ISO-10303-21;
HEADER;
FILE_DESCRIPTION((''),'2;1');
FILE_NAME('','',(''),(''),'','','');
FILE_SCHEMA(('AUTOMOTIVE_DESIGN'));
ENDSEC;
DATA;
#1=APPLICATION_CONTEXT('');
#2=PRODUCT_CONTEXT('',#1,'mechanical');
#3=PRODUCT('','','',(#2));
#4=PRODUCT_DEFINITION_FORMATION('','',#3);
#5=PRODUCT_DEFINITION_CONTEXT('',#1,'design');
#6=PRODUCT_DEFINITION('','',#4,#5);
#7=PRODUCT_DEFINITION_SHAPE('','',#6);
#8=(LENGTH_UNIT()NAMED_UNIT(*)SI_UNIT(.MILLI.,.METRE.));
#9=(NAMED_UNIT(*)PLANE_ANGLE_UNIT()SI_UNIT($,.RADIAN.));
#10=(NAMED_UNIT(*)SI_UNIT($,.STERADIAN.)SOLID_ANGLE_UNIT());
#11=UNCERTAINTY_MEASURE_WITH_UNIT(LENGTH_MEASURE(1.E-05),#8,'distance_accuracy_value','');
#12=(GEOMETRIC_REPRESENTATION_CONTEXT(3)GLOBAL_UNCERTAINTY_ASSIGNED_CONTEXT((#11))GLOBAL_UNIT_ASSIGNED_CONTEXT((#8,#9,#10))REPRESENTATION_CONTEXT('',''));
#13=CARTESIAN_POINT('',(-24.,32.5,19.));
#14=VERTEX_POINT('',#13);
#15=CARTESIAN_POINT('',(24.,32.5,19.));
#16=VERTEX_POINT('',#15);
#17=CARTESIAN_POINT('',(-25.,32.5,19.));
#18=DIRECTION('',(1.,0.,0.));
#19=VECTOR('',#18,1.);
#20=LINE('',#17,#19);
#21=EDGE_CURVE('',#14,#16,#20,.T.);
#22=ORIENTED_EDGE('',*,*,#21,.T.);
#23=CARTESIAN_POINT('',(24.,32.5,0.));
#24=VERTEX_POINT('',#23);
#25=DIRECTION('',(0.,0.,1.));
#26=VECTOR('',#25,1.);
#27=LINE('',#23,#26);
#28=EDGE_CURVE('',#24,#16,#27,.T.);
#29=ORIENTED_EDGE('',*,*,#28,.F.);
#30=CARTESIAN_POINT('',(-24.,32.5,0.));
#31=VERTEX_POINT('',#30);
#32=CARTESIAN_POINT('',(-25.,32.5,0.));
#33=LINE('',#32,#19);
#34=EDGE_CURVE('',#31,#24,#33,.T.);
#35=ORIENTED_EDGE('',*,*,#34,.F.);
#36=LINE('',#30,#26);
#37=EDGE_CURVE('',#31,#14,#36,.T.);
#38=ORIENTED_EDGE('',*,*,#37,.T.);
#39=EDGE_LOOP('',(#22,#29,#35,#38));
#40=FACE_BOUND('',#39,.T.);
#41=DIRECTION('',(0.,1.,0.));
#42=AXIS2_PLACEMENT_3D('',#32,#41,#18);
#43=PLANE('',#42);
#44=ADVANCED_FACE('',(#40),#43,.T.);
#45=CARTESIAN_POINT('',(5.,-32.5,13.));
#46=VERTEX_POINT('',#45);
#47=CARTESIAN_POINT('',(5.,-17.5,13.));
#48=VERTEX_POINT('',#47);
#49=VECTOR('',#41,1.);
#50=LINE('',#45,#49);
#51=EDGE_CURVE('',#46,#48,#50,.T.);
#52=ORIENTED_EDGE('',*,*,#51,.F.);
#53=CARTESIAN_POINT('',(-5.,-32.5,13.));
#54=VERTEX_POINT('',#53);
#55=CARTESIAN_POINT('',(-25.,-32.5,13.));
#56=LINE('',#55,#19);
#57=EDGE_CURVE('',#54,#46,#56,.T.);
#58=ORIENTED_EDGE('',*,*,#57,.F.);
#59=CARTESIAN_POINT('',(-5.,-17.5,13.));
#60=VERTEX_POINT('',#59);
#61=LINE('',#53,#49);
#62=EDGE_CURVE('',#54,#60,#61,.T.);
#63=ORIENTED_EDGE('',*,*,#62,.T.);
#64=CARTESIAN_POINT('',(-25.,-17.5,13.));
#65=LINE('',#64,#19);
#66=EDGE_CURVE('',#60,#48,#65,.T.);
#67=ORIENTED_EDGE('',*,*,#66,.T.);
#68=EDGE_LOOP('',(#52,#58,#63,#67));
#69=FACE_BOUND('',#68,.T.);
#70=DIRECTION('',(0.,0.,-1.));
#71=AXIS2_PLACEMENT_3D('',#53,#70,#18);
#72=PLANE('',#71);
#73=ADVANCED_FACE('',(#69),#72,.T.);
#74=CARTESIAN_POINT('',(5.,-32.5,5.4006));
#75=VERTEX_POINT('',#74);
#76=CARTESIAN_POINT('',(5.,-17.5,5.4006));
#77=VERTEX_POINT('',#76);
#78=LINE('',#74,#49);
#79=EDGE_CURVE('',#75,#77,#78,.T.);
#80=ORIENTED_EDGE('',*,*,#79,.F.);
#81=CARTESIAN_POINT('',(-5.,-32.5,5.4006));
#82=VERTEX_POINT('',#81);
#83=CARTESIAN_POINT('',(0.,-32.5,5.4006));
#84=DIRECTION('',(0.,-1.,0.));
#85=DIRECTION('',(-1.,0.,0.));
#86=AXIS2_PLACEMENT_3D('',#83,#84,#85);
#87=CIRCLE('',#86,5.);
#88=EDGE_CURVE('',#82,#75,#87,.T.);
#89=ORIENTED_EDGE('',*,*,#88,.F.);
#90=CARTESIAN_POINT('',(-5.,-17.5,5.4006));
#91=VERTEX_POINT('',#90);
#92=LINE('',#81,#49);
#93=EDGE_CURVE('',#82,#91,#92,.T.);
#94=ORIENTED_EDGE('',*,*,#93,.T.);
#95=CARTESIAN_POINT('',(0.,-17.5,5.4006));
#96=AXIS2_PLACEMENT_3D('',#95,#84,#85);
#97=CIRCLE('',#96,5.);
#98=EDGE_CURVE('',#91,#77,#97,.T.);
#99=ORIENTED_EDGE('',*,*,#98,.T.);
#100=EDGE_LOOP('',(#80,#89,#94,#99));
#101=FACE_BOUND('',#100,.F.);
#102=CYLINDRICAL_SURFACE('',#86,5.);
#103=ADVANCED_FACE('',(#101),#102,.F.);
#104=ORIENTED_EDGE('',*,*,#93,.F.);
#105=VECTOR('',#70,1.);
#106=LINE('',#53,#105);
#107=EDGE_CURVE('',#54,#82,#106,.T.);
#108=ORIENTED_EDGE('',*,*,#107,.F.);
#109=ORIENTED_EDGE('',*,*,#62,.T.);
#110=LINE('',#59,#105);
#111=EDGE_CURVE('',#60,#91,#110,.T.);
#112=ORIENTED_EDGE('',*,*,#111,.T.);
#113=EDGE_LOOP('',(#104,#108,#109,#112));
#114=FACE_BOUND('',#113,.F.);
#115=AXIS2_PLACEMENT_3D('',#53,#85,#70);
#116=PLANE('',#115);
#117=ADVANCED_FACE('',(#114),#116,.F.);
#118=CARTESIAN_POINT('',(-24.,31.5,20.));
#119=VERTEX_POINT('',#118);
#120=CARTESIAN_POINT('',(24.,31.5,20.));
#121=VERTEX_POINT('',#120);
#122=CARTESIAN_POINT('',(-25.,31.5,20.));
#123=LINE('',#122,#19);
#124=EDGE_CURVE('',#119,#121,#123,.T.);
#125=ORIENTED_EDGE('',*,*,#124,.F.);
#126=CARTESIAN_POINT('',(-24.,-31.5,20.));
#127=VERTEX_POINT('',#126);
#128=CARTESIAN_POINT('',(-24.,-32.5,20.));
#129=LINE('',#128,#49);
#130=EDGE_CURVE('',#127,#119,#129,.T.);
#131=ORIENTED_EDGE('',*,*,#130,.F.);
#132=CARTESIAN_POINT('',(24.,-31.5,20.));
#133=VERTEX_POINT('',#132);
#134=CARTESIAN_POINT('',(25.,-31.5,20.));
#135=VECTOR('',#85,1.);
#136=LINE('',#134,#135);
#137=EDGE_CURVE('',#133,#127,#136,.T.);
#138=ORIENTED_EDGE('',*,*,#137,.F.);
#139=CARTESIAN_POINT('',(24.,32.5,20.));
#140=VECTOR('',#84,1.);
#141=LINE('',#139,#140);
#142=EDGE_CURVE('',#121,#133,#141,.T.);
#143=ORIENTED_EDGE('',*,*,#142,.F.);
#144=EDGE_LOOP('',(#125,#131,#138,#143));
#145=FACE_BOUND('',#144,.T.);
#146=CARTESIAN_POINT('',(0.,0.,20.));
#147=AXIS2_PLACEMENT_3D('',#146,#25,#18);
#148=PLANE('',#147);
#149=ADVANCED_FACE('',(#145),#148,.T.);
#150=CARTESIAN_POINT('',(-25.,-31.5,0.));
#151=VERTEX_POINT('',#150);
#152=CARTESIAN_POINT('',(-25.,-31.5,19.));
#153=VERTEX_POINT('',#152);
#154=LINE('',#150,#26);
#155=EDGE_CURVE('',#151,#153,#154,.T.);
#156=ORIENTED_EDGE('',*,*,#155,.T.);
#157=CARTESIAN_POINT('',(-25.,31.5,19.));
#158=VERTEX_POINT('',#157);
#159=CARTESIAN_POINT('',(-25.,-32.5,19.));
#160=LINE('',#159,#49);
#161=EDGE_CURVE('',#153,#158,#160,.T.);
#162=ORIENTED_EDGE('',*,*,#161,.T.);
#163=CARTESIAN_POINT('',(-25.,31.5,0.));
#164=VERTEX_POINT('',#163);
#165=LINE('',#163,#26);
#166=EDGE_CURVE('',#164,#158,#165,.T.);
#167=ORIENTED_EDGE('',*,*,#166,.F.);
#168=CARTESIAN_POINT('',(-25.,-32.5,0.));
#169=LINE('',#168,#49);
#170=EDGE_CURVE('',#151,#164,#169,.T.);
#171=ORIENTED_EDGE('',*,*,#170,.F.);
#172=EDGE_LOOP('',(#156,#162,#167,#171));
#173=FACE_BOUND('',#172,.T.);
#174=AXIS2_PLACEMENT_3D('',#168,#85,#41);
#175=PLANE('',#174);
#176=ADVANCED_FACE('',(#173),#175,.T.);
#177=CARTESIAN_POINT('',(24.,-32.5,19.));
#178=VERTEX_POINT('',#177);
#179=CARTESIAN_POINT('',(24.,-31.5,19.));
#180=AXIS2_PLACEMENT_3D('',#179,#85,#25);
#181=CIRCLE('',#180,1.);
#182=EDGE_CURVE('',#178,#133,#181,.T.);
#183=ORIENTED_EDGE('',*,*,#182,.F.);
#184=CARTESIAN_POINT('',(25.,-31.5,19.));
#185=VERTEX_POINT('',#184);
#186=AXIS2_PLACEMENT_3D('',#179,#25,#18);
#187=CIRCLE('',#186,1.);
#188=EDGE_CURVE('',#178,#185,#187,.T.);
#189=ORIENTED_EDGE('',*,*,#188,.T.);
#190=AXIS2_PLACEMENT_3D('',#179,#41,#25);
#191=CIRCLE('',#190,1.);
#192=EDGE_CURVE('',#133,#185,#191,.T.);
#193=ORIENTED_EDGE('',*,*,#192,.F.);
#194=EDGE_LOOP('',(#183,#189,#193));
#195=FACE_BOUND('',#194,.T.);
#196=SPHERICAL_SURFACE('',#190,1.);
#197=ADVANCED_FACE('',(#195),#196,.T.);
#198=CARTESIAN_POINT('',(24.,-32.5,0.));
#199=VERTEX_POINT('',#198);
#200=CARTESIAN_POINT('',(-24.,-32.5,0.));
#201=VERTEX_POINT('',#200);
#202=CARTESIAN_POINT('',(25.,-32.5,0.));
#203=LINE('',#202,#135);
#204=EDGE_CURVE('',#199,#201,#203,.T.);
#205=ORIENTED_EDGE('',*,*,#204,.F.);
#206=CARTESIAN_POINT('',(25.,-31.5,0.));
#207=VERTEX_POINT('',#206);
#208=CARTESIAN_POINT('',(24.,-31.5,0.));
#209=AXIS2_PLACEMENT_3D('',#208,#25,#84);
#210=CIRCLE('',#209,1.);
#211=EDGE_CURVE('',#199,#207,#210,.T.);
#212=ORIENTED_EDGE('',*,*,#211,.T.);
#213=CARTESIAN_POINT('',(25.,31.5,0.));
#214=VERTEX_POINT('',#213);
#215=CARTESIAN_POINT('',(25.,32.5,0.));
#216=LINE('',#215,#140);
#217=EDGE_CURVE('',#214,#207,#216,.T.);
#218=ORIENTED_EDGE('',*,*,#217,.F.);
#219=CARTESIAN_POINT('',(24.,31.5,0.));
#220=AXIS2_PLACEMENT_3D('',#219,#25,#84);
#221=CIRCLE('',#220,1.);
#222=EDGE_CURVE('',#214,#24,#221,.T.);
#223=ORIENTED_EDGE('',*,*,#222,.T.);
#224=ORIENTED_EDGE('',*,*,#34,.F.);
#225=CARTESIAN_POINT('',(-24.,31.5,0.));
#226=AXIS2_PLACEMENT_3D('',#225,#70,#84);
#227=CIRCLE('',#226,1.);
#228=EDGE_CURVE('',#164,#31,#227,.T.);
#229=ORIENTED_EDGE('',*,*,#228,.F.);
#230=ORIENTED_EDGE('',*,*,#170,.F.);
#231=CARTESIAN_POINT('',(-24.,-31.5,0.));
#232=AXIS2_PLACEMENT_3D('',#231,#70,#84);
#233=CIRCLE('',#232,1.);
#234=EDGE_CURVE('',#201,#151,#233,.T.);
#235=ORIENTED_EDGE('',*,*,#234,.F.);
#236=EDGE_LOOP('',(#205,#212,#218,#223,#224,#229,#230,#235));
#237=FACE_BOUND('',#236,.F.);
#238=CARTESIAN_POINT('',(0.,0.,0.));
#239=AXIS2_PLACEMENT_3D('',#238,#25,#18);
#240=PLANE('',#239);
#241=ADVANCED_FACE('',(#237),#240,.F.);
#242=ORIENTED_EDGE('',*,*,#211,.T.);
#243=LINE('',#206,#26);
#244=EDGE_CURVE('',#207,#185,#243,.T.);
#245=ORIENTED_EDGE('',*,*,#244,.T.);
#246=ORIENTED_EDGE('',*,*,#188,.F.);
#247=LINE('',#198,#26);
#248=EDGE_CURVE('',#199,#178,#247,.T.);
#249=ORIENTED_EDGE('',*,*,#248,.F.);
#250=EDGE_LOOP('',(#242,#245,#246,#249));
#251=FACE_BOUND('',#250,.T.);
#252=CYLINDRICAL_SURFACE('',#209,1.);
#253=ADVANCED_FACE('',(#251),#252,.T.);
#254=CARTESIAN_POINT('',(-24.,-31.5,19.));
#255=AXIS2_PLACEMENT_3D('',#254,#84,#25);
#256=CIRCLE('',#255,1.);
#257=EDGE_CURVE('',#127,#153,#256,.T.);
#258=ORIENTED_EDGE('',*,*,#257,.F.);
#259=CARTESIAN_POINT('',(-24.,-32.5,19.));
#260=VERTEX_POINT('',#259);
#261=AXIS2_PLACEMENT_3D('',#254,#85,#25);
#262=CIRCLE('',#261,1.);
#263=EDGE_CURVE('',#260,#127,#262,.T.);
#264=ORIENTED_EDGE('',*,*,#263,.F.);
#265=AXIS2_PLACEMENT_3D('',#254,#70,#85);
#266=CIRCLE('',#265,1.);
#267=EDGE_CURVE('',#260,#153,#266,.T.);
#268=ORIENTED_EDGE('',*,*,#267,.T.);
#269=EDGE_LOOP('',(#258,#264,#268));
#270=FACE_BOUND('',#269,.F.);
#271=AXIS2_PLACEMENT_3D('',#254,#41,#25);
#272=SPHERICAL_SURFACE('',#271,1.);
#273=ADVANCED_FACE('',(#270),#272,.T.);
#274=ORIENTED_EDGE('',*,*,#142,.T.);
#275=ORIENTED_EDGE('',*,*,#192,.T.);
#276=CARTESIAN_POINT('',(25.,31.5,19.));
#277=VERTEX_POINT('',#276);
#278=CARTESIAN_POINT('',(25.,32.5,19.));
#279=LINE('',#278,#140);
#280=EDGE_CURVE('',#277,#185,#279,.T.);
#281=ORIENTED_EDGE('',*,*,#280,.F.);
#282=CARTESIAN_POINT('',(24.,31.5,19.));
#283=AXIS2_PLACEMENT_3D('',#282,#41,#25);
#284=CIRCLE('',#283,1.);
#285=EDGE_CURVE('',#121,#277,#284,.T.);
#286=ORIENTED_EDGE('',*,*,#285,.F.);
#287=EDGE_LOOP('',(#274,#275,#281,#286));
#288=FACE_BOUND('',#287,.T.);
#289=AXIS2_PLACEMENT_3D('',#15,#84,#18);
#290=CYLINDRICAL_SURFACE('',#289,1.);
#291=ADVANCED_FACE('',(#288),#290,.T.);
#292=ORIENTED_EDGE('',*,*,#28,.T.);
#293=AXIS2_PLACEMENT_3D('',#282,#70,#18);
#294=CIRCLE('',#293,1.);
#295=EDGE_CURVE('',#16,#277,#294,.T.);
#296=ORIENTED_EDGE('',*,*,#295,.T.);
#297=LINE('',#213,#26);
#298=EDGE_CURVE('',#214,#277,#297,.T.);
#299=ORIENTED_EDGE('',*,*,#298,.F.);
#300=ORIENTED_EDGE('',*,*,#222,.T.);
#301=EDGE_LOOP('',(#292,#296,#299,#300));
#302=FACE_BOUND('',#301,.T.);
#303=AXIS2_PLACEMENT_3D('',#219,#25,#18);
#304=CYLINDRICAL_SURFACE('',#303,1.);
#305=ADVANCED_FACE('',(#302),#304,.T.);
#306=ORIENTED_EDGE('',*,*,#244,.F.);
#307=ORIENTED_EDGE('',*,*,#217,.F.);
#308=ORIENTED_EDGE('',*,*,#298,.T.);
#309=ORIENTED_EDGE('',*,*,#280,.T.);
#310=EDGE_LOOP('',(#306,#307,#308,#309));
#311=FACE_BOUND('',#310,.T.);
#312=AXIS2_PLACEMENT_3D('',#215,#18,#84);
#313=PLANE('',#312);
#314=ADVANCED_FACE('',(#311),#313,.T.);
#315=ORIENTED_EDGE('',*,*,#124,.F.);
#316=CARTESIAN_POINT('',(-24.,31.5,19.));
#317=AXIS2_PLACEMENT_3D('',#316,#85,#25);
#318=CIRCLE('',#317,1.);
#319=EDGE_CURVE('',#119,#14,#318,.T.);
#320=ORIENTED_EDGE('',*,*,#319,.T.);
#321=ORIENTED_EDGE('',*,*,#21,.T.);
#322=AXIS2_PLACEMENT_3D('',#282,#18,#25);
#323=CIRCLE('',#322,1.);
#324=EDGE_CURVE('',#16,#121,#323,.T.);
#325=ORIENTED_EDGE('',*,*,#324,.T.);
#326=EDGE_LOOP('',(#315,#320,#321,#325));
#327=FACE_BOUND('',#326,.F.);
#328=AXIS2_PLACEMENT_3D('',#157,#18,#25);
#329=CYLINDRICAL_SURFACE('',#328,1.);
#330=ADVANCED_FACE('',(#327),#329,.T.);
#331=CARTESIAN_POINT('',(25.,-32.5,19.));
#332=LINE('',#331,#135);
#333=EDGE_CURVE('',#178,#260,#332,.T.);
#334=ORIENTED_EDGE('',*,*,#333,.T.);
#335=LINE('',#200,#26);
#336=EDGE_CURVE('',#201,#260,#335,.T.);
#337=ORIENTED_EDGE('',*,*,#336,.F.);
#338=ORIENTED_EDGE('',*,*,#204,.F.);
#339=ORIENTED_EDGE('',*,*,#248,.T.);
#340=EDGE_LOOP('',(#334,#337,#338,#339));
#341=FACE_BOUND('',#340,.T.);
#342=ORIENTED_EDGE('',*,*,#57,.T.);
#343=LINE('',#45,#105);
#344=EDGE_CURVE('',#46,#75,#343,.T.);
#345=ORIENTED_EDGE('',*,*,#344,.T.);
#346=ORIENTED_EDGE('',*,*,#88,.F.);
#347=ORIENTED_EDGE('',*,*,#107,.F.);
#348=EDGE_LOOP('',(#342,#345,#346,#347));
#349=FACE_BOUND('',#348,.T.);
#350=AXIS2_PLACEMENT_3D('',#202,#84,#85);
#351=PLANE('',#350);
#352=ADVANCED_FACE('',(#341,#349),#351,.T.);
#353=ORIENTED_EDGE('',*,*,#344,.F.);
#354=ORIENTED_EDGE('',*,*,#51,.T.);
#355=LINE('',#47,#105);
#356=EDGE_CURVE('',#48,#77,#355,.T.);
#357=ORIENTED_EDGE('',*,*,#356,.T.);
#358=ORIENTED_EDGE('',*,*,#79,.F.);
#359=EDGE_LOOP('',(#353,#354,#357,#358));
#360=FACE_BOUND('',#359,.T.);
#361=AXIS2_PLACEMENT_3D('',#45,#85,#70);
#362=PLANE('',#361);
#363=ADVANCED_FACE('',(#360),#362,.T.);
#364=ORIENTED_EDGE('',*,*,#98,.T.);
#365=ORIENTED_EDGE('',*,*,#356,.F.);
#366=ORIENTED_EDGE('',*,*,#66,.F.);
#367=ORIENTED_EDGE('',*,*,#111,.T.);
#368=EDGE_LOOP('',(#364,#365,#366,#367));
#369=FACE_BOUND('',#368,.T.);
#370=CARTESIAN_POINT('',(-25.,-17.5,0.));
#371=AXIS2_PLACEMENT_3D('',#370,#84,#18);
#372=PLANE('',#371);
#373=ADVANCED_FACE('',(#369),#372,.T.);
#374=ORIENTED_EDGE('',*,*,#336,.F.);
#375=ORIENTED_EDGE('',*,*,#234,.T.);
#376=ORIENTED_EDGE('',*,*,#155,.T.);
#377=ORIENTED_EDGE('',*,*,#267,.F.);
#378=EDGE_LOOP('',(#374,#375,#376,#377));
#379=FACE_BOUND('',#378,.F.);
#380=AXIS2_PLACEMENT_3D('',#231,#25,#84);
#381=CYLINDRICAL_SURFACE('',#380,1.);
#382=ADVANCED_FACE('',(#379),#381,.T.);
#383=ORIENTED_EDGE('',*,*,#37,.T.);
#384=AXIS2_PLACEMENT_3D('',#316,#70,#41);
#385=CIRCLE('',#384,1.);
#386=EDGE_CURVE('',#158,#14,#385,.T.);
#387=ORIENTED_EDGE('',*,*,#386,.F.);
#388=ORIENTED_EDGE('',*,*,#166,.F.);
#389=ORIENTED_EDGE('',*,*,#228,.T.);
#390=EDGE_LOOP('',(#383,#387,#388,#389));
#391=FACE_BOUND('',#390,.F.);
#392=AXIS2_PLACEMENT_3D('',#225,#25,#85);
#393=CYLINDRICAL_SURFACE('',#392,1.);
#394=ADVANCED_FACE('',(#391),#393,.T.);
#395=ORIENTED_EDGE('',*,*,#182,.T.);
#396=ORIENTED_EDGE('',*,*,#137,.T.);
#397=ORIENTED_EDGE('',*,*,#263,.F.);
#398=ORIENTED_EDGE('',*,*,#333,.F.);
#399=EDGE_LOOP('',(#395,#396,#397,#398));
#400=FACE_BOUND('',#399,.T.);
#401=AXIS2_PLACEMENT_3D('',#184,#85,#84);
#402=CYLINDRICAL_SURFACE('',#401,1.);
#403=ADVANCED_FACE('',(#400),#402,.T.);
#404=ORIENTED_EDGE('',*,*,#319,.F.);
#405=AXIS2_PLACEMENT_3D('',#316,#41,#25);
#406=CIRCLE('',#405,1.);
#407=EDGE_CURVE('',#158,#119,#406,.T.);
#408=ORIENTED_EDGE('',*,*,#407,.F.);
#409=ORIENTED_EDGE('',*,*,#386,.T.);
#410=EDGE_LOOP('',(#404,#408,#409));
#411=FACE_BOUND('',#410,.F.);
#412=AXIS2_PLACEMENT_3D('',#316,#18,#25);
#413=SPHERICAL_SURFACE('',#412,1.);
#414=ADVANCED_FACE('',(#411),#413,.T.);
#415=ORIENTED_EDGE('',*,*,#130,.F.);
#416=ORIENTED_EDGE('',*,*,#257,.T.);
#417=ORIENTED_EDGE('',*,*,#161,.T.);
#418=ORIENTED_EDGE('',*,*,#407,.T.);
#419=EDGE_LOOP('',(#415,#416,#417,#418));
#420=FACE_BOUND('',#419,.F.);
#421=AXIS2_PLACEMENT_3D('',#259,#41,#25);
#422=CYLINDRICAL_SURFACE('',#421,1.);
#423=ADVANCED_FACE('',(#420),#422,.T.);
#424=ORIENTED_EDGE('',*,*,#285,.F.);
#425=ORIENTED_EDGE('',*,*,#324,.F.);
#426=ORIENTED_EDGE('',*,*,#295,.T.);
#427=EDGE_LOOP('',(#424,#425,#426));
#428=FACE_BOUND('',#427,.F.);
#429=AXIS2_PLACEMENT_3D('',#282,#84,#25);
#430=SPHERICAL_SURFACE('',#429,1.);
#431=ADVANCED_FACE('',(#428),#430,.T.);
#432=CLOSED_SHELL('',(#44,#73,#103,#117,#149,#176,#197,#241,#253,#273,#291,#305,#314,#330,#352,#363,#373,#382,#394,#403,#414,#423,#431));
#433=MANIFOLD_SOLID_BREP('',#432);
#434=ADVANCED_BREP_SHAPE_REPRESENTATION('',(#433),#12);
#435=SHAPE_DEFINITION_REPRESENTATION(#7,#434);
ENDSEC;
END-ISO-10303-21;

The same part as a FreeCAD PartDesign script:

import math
import FreeCAD as App
import Part
import Sketcher

V = App.Vector


def edges_at(feature, points):
    """Names of the edges that pass closest to the given points."""
    edges = feature.Shape.Edges
    near = lambda p: min(range(len(edges)), key=lambda i: edges[i].distToShape(Part.Vertex(*p))[0])
    return sorted({f"Edge{near(p) + 1}" for p in points})


def add_polygon(sketch, points):
    """Adds a closed chain of lines whose ends are joined by coincident constraints."""
    first, n = sketch.GeometryCount, len(points)
    for a, b in zip(points, points[1:] + points[:1]):
        sketch.addGeometry(Part.LineSegment(App.Vector(*a, 0), App.Vector(*b, 0)), False)
    for i in range(n):
        sketch.addConstraint(Sketcher.Constraint("Coincident", first + i, 2, first + (i + 1) % n, 1))

doc = App.newDocument("Part")
body = doc.addObject("PartDesign::Body", "Body")

# Sketch on XY plane
sketch1 = body.newObject("Sketcher::SketchObject", "Sketch")
sketch1.AttachmentSupport = (doc.getObject("XY_Plane"), [""])
sketch1.MapMode = "FlatFace"
add_polygon(sketch1, [(-25, -32), (25, -32), (25, 32), (-25, 32)])  # lines 0-3
sketch1.addConstraint(Sketcher.Constraint("Horizontal", 0))
sketch1.addConstraint(Sketcher.Constraint("Vertical", 1))
sketch1.addConstraint(Sketcher.Constraint("Horizontal", 2))
sketch1.addConstraint(Sketcher.Constraint("Vertical", 3))
sketch1.addConstraint(Sketcher.Constraint("Symmetric", 0, 2, 2, 2, -1, 1))
sketch1.addConstraint(Sketcher.Constraint("DistanceX", 0, 1, 0, 2, 50.0))
sketch1.addConstraint(Sketcher.Constraint("DistanceY", 1, 1, 1, 2, 65.0))
pad1 = body.newObject("PartDesign::Pad", "Pad")
pad1.Profile = sketch1
pad1.Length = 20

# Sketch on XZ plane
sketch2 = body.newObject("Sketcher::SketchObject", "Sketch001")
sketch2.AttachmentSupport = (doc.getObject("XZ_Plane"), [""])
sketch2.MapMode = "FlatFace"
sketch2.AttachmentOffset = App.Placement(V(0, 0, 32.5), App.Rotation())
sketch2.addGeometry(Part.LineSegment(V(5, 13, 0), V(-5, 13, 0)), False)
sketch2.addGeometry(Part.LineSegment(V(-5, 13, 0), V(-5, 5, 0)), False)
sketch2.addGeometry(Part.ArcOfCircle(Part.Circle(V(0, 5, 0), V(0, 0, 1), 5), math.radians(180), math.radians(360)), False)
sketch2.addGeometry(Part.LineSegment(V(5, 5, 0), V(5, 13, 0)), False)
sketch2.addConstraint(Sketcher.Constraint("Coincident", 0, 2, 1, 1))
sketch2.addConstraint(Sketcher.Constraint("Tangent", 1, 2, 2, 1))
sketch2.addConstraint(Sketcher.Constraint("Tangent", 2, 2, 3, 1))
sketch2.addConstraint(Sketcher.Constraint("Coincident", 3, 2, 0, 1))
sketch2.addConstraint(Sketcher.Constraint("Horizontal", 0))
sketch2.addConstraint(Sketcher.Constraint("Vertical", 1))
sketch2.addConstraint(Sketcher.Constraint("Vertical", 3))
sketch2.addConstraint(Sketcher.Constraint("PointOnObject", 2, 3, -2))
sketch2.addConstraint(Sketcher.Constraint("Radius", 2, 5.0))
sketch2.addConstraint(Sketcher.Constraint("DistanceY", -1, 1, 0, 2, 13.0))
sketch2.addConstraint(Sketcher.Constraint("DistanceY", 1, 2, 1, 1, 7.5994))
pocket1 = body.newObject("PartDesign::Pocket", "Pocket")
pocket1.Profile = sketch2
pocket1.Length = 15
doc.recompute()

fillet = body.newObject("PartDesign::Fillet", "Fillet")
fillet.Base = (pocket1, edges_at(pocket1, [
    (25, 0, 20),
    (0, 32.5, 20),
    (25, 32.5, 10),
    (-25, 0, 20),
    (-25, 32.5, 10),
    (0, -32.5, 20),
    (-25, -32.5, 10),
    (25, -32.5, 10),
]))
fillet.Radius = 1

doc.recompute()
